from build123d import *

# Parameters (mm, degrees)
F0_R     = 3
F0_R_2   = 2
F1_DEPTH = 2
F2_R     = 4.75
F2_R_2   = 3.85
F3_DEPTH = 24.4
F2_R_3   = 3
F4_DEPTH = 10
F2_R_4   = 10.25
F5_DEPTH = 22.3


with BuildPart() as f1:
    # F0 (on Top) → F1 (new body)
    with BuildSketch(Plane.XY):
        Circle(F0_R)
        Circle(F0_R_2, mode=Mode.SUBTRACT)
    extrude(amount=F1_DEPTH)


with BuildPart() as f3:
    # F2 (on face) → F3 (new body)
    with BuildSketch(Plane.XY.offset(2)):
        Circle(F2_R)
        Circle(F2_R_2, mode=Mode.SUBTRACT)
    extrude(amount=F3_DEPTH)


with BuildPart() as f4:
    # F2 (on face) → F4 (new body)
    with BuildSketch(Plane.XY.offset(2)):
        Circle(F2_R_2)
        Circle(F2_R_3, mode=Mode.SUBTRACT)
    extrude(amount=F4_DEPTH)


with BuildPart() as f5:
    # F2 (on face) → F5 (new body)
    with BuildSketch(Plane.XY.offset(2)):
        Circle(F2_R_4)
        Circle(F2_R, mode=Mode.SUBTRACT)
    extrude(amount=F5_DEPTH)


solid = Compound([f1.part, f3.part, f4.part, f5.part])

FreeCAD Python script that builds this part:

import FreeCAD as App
import Part
import Sketcher

V = App.Vector

doc = App.newDocument("Part")
body = doc.addObject("PartDesign::Body", "Body")

# Sketch on XY plane
sketch1 = doc.addObject("Sketcher::SketchObject", "Sketch")
body.addObject(sketch1)
sketch1.AttachmentSupport = (doc.XY_Plane, [""])
sketch1.MapMode = "FlatFace"
sketch1.addGeometry([
    Part.Circle(V(0, 0, 0), V(0, 0, 1), 3),
    Part.Circle(V(0, 0, 0), V(0, 0, 1), 2),
], False)
sketch1.addConstraint([
    Sketcher.Constraint("Coincident", 0, 3, -1, 1),
    Sketcher.Constraint("Coincident", 1, 3, -1, 1),
    Sketcher.Constraint("Diameter", 0, 6.0),
    Sketcher.Constraint("Diameter", 1, 4.0),
])
pad1 = doc.addObject("PartDesign::Pad", "Pad")
body.addObject(pad1)
pad1.Profile = sketch1
pad1.Length = 2
body2 = doc.addObject("PartDesign::Body", "Body001")

# Sketch on XY plane
sketch2 = doc.addObject("Sketcher::SketchObject", "Sketch001")
body2.addObject(sketch2)
sketch2.AttachmentSupport = (doc.getObject("XY_Plane001"), [""])
sketch2.MapMode = "FlatFace"
sketch2.AttachmentOffset = App.Placement(V(0, 0, 2), App.Rotation())
sketch2.addGeometry([
    Part.Circle(V(0, 0, 0), V(0, 0, 1), 4.8),
    Part.Circle(V(0, 0, 0), V(0, 0, 1), 3.9),
], False)
sketch2.addConstraint([
    Sketcher.Constraint("Coincident", 0, 3, -1, 1),
    Sketcher.Constraint("Coincident", 1, 3, -1, 1),
    Sketcher.Constraint("Diameter", 0, 9.5),
    Sketcher.Constraint("Diameter", 1, 7.7),
])
pad2 = doc.addObject("PartDesign::Pad", "Pad001")
body2.addObject(pad2)
pad2.Profile = sketch2
pad2.Length = 24.4
body3 = doc.addObject("PartDesign::Body", "Body002")

# Sketch on XY plane
sketch3 = doc.addObject("Sketcher::SketchObject", "Sketch002")
body3.addObject(sketch3)
sketch3.AttachmentSupport = (doc.getObject("XY_Plane002"), [""])
sketch3.MapMode = "FlatFace"
sketch3.AttachmentOffset = App.Placement(V(0, 0, 2), App.Rotation())
sketch3.addGeometry([
    Part.Circle(V(0, 0, 0), V(0, 0, 1), 3.9),
    Part.Circle(V(0, 0, 0), V(0, 0, 1), 3),
], False)
sketch3.addConstraint([
    Sketcher.Constraint("Coincident", 0, 3, -1, 1),
    Sketcher.Constraint("Coincident", 1, 3, -1, 1),
    Sketcher.Constraint("Diameter", 1, 6.0),
    Sketcher.Constraint("Diameter", 0, 7.7),
])
pad3 = doc.addObject("PartDesign::Pad", "Pad002")
body3.addObject(pad3)
pad3.Profile = sketch3
pad3.Length = 10
body4 = doc.addObject("PartDesign::Body", "Body003")

# Sketch on XY plane
sketch4 = doc.addObject("Sketcher::SketchObject", "Sketch003")
body4.addObject(sketch4)
sketch4.AttachmentSupport = (doc.getObject("XY_Plane003"), [""])
sketch4.MapMode = "FlatFace"
sketch4.AttachmentOffset = App.Placement(V(0, 0, 2), App.Rotation())
sketch4.addGeometry([
    Part.Circle(V(0, 0, 0), V(0, 0, 1), 10.2),
    Part.Circle(V(0, 0, 0), V(0, 0, 1), 4.8),
], False)
sketch4.addConstraint([
    Sketcher.Constraint("Coincident", 0, 3, -1, 1),
    Sketcher.Constraint("Coincident", 1, 3, -1, 1),
    Sketcher.Constraint("Diameter", 0, 20.5),
    Sketcher.Constraint("Diameter", 1, 9.5),
])
pad4 = doc.addObject("PartDesign::Pad", "Pad003")
body4.addObject(pad4)
pad4.Profile = sketch4
pad4.Length = 22.3

doc.recompute()
